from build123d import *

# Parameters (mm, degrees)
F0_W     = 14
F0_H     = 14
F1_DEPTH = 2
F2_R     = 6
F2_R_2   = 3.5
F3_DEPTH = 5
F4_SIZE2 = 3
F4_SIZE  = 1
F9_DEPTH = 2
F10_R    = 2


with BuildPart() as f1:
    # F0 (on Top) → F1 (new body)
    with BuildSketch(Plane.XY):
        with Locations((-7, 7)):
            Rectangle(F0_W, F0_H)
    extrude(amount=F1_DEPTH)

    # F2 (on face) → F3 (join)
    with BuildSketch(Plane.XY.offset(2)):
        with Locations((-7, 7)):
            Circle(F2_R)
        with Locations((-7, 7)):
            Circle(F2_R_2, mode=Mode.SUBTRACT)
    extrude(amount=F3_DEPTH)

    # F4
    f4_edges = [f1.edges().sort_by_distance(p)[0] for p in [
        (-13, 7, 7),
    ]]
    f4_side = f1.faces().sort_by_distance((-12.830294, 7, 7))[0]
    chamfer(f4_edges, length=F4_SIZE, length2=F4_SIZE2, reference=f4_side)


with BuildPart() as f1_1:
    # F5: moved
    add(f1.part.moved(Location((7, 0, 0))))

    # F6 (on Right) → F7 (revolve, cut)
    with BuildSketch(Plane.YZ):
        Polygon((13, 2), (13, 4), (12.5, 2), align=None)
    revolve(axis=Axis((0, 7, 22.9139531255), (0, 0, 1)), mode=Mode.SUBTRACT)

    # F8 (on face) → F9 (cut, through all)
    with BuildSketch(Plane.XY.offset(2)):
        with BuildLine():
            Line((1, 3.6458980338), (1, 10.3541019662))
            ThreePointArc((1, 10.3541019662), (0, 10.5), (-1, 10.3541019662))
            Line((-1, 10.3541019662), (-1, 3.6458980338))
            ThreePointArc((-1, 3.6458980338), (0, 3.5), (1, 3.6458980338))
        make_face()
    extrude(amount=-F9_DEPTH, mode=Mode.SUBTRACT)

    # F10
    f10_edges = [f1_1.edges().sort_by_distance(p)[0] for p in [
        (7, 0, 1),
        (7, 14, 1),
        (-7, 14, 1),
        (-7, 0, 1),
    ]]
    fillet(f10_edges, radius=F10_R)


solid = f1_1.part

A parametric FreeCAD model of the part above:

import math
import FreeCAD as App
import Part
import Sketcher
from FreeCAD import Vector


def edges_at(feature, points):
    """Names of the edges that pass closest to the given points."""
    edges = feature.Shape.Edges
    near = lambda p: min(range(len(edges)), key=lambda i: edges[i].distToShape(Part.Vertex(*p))[0])
    return sorted({f"Edge{near(p) + 1}" for p in points})


def add_polygon(sketch, points):
    """Adds a closed chain of lines whose ends are joined by coincident constraints."""
    first, n = sketch.GeometryCount, len(points)
    for a, b in zip(points, points[1:] + points[:1]):
        sketch.addGeometry(Part.LineSegment(App.Vector(*a, 0), App.Vector(*b, 0)), False)
    for i in range(n):
        sketch.addConstraint(Sketcher.Constraint("Coincident", first + i, 2, first + (i + 1) % n, 1))

doc = App.newDocument("Part")
params = doc.addObject("Spreadsheet::Sheet", "Params")
for row, (alias, value) in enumerate([
    ("sketch1_width", "14 mm"),
    ("pad1_length", "2 mm"),
    ("sketch2_diameter", "12 mm"),
    ("sketch2_diameter2", "7 mm"),
    ("pad2_length", "5 mm"),
    ("chamfer_size", "1 mm"),
    ("chamfer_size2", "3 mm"),
    ("sketch3_height", "2 mm"),
    ("sketch3_width", "0.5 mm"),
    ("groove_angle", "360 deg"),
    ("sketch4_radius", "3.5 mm"),
    ("fillet_radius", "2 mm"),
], start=1):
    params.set(f"A{row}", alias)
    params.set(f"B{row}", "=" + value)
    params.setAlias(f"B{row}", alias)

body = doc.addObject("PartDesign::Body", "Body")

sketch1 = doc.addObject("Sketcher::SketchObject", "Sketch")
body.addObject(sketch1)
sketch1.AttachmentSupport = (doc.XY_Plane, [""])
sketch1.MapMode = "FlatFace"
add_polygon(sketch1, [(-14, 14), (-14, 0), (0, 0), (0, 14)])
sketch1.addConstraint([
    Sketcher.Constraint("Vertical", 0),
    Sketcher.Constraint("Horizontal", 1),
    Sketcher.Constraint("Vertical", 2),
    Sketcher.Constraint("Horizontal", 3),
    Sketcher.Constraint("Coincident", 1, 2, -1, 1),
    Sketcher.Constraint("Equal", 3, 0),
    Sketcher.Constraint("DistanceX", 1, 1, 1, 2, 14.0),
])
sketch1.setExpression("Constraints[10]", "Params.sketch1_width")
pad1 = doc.addObject("PartDesign::Pad", "Pad")
body.addObject(pad1)
pad1.Profile = sketch1
pad1.setExpression("Length", "Params.pad1_length")

sketch2 = doc.addObject("Sketcher::SketchObject", "Sketch001")
body.addObject(sketch2)
sketch2.AttachmentSupport = (doc.XY_Plane, [""])
sketch2.MapMode = "FlatFace"
sketch2.AttachmentOffset = App.Placement(Vector(0, 0, 2), App.Rotation())
sketch2.addGeometry([
    Part.Circle(Vector(-7, 7, 0), Vector(0, 0, 1), 6),
    Part.Circle(Vector(-7, 7, 0), Vector(0, 0, 1), 3.5),
], False)
sketch2.addConstraint([
    Sketcher.Constraint("Coincident", 1, 3, 0, 3),
    Sketcher.Constraint("Diameter", 0, 12.0),
    Sketcher.Constraint("Diameter", 1, 7.0),
    Sketcher.Constraint("DistanceX", 0, 3, -1, 1, 7.0),
    Sketcher.Constraint("DistanceY", -1, 1, 0, 3, 7.0),
])
sketch2.setExpression("Constraints[1]", "Params.sketch2_diameter")
sketch2.setExpression("Constraints[2]", "Params.sketch2_diameter2")
pad2 = doc.addObject("PartDesign::Pad", "Pad001")
body.addObject(pad2)
pad2.Profile = sketch2
pad2.setExpression("Length", "Params.pad2_length")
doc.recompute()

chamfer = doc.addObject("PartDesign::Chamfer", "Chamfer")
body.addObject(chamfer)
chamfer.Base = (pad2, edges_at(pad2, [(-13, 7, 7)]))
chamfer.ChamferType = "Two distances"
chamfer.setExpression("Size", "Params.chamfer_size")
chamfer.setExpression("Size2", "Params.chamfer_size2")
chamfer.FlipDirection = True
body2 = doc.addObject("PartDesign::Body", "Body001")
doc.recompute()

body.Placement = App.Placement(Vector(7, 0, 0), App.Rotation(Vector(0, 0, 1), 0))
boolean = doc.addObject("PartDesign::Boolean", "Boolean")
body2.addObject(boolean)
boolean.Type = "Fuse"
boolean.addObjects([body])

sketch3 = doc.addObject("Sketcher::SketchObject", "Sketch002")
body2.addObject(sketch3)
sketch3.AttachmentSupport = (doc.getObject("YZ_Plane001"), [""])
sketch3.MapMode = "FlatFace"
add_polygon(sketch3, [(13, 2), (13, 4), (12.5, 2)])
sketch3.addGeometry(Part.LineSegment(Vector(7, 2, 0), Vector(7, 4, 0)), True)
sketch3.addConstraint([
    Sketcher.Constraint("Vertical", 0),
    Sketcher.Constraint("Horizontal", 2),
    Sketcher.Constraint("Vertical", 3),
    Sketcher.Constraint("Horizontal", 2, 2, 3, 1),
    Sketcher.Constraint("Horizontal", 0, 2, 3, 2),
    Sketcher.Constraint("DistanceY", 0, 1, 0, 2, 2.0),
    Sketcher.Constraint("DistanceX", 2, 1, 2, 2, 0.5),
    Sketcher.Constraint("DistanceX", -1, 1, 0, 2, 13.0),
    Sketcher.Constraint("DistanceY", -1, 1, 0, 2, 4.0),
    Sketcher.Constraint("DistanceX", -1, 1, 3, 1, 7.0),
])
sketch3.setExpression("Constraints[8]", "Params.sketch3_height")
sketch3.setExpression("Constraints[9]", "Params.sketch3_width")
groove = doc.addObject("PartDesign::Groove", "Groove")
body2.addObject(groove)
groove.Profile = sketch3
groove.ReferenceAxis = (sketch3, ["Axis0"])
groove.setExpression("Angle", "Params.groove_angle")

sketch4 = doc.addObject("Sketcher::SketchObject", "Sketch003")
body2.addObject(sketch4)
sketch4.AttachmentSupport = (doc.getObject("XY_Plane001"), [""])
sketch4.MapMode = "FlatFace"
sketch4.AttachmentOffset = App.Placement(Vector(0, 0, 2), App.Rotation())
sketch4.addGeometry([
    Part.LineSegment(Vector(1, 3.6, 0), Vector(1, 10.4, 0)),
    Part.ArcOfCircle(Part.Circle(Vector(0, 7, 0), Vector(0, 0, 1), 3.5), math.radians(73), math.radians(107)),
    Part.LineSegment(Vector(-1, 10.4, 0), Vector(-1, 3.6, 0)),
    Part.ArcOfCircle(Part.Circle(Vector(0, 7, 0), Vector(0, 0, 1), 3.5), math.radians(-107), math.radians(-73)),
], False)
sketch4.addConstraint([
    Sketcher.Constraint("Coincident", 0, 2, 1, 1),
    Sketcher.Constraint("Coincident", 1, 2, 2, 1),
    Sketcher.Constraint("Coincident", 2, 2, 3, 1),
    Sketcher.Constraint("Coincident", 3, 2, 0, 1),
    Sketcher.Constraint("Vertical", 0),
    Sketcher.Constraint("Vertical", 2),
    Sketcher.Constraint("Coincident", 3, 3, 1, 3),
    Sketcher.Constraint("Equal", 1, 3),
    Sketcher.Constraint("Symmetric", 0, 2, 1, 2, -2),
    Sketcher.Constraint("Radius", 1, 3.5),
    Sketcher.Constraint("DistanceY", -1, 1, 1, 3, 7.0),
    Sketcher.Constraint("DistanceX", -1, 1, 0, 2, 1.0),
])
sketch4.setExpression("Constraints[9]", "Params.sketch4_radius")
pocket1 = doc.addObject("PartDesign::Pocket", "Pocket")
body2.addObject(pocket1)
pocket1.Profile = sketch4
pocket1.Type = "ThroughAll"
doc.recompute()

fillet = doc.addObject("PartDesign::Fillet", "Fillet")
body2.addObject(fillet)
fillet.Base = (pocket1, edges_at(pocket1, [
    (7, 0, 1),
    (7, 14, 1),
    (-7, 14, 1),
    (-7, 0, 1),
]))
fillet.setExpression("Radius", "Params.fillet_radius")

doc.recompute()
